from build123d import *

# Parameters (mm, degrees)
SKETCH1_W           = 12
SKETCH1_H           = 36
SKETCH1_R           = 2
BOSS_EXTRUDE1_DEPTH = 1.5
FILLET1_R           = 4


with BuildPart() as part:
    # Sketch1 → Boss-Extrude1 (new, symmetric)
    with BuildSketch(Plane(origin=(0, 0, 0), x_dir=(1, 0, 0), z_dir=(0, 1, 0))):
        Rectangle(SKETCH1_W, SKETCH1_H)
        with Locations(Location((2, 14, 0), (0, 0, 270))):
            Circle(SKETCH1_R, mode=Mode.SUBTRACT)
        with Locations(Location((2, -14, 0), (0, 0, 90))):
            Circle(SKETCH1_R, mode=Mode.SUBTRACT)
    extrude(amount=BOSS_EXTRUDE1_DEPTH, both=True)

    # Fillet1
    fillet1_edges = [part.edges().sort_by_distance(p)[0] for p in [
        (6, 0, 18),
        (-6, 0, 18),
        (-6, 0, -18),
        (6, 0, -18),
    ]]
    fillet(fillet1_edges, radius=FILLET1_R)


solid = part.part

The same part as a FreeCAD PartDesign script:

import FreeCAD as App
import Part
import Sketcher
from FreeCAD import Vector


def edges_at(feature, points):
    """Names of the edges that pass closest to the given points."""
    edges = feature.Shape.Edges
    near = lambda p: min(range(len(edges)), key=lambda i: edges[i].distToShape(Part.Vertex(*p))[0])
    return sorted({f"Edge{near(p) + 1}" for p in points})

doc = App.newDocument("Part")
body = doc.addObject("PartDesign::Body", "Body")

sketch1 = body.newObject("Sketcher::SketchObject", "Sketch")
sketch1.AttachmentSupport = (doc.getObject("XZ_Plane"), [""])
sketch1.MapMode = "FlatFace"
sketch1.addGeometry(Part.LineSegment(Vector(-6, -18, 0), Vector(-6, 18, 0)), False)
sketch1.addGeometry(Part.LineSegment(Vector(-6, 18, 0), Vector(6, 18, 0)), False)
sketch1.addGeometry(Part.LineSegment(Vector(6, 18, 0), Vector(6, -18, 0)), False)
sketch1.addGeometry(Part.LineSegment(Vector(6, -18, 0), Vector(-6, -18, 0)), False)
sketch1.addGeometry(Part.Circle(Vector(2, 14, 0), Vector(0, 0, 1), 2), False)
sketch1.addGeometry(Part.Circle(Vector(2, -14, 0), Vector(0, 0, 1), 2), False)
sketch1.addConstraint(Sketcher.Constraint("Coincident", 0, 2, 1, 1))
sketch1.addConstraint(Sketcher.Constraint("Coincident", 1, 2, 2, 1))
sketch1.addConstraint(Sketcher.Constraint("Coincident", 2, 2, 3, 1))
sketch1.addConstraint(Sketcher.Constraint("Coincident", 3, 2, 0, 1))
sketch1.addConstraint(Sketcher.Constraint("Vertical", 0))
sketch1.addConstraint(Sketcher.Constraint("Horizontal", 1))
sketch1.addConstraint(Sketcher.Constraint("Vertical", 2))
sketch1.addConstraint(Sketcher.Constraint("Horizontal", 3))
sketch1.addConstraint(Sketcher.Constraint("Equal", 4, 5))
sketch1.addConstraint(Sketcher.Constraint("Symmetric", 0, 2, 2, 2, -1, 1))
sketch1.addConstraint(Sketcher.Constraint("Symmetric", 4, 3, 5, 3, -1))
sketch1.addConstraint(Sketcher.Constraint("Diameter", 4, 4.0))
sketch1.addConstraint(Sketcher.Constraint("DistanceX", 1, 1, 1, 2, 12.0))
sketch1.addConstraint(Sketcher.Constraint("DistanceY", 0, 1, 0, 2, 36.0))
sketch1.addConstraint(Sketcher.Constraint("DistanceX", -1, 1, 4, 3, 2.0))
sketch1.addConstraint(Sketcher.Constraint("DistanceY", -1, 1, 4, 3, 14.0))
pad1 = body.newObject("PartDesign::Pad", "Pad")
pad1.Profile = sketch1
pad1.Length = 3
pad1.Midplane = True
doc.recompute()

fillet = body.newObject("PartDesign::Fillet", "Fillet")
fillet.Base = (pad1, edges_at(pad1, [
    (6, 0, 18),
    (-6, 0, 18),
    (-6, 0, -18),
    (6, 0, -18),
]))
fillet.Radius = 4

doc.recompute()
